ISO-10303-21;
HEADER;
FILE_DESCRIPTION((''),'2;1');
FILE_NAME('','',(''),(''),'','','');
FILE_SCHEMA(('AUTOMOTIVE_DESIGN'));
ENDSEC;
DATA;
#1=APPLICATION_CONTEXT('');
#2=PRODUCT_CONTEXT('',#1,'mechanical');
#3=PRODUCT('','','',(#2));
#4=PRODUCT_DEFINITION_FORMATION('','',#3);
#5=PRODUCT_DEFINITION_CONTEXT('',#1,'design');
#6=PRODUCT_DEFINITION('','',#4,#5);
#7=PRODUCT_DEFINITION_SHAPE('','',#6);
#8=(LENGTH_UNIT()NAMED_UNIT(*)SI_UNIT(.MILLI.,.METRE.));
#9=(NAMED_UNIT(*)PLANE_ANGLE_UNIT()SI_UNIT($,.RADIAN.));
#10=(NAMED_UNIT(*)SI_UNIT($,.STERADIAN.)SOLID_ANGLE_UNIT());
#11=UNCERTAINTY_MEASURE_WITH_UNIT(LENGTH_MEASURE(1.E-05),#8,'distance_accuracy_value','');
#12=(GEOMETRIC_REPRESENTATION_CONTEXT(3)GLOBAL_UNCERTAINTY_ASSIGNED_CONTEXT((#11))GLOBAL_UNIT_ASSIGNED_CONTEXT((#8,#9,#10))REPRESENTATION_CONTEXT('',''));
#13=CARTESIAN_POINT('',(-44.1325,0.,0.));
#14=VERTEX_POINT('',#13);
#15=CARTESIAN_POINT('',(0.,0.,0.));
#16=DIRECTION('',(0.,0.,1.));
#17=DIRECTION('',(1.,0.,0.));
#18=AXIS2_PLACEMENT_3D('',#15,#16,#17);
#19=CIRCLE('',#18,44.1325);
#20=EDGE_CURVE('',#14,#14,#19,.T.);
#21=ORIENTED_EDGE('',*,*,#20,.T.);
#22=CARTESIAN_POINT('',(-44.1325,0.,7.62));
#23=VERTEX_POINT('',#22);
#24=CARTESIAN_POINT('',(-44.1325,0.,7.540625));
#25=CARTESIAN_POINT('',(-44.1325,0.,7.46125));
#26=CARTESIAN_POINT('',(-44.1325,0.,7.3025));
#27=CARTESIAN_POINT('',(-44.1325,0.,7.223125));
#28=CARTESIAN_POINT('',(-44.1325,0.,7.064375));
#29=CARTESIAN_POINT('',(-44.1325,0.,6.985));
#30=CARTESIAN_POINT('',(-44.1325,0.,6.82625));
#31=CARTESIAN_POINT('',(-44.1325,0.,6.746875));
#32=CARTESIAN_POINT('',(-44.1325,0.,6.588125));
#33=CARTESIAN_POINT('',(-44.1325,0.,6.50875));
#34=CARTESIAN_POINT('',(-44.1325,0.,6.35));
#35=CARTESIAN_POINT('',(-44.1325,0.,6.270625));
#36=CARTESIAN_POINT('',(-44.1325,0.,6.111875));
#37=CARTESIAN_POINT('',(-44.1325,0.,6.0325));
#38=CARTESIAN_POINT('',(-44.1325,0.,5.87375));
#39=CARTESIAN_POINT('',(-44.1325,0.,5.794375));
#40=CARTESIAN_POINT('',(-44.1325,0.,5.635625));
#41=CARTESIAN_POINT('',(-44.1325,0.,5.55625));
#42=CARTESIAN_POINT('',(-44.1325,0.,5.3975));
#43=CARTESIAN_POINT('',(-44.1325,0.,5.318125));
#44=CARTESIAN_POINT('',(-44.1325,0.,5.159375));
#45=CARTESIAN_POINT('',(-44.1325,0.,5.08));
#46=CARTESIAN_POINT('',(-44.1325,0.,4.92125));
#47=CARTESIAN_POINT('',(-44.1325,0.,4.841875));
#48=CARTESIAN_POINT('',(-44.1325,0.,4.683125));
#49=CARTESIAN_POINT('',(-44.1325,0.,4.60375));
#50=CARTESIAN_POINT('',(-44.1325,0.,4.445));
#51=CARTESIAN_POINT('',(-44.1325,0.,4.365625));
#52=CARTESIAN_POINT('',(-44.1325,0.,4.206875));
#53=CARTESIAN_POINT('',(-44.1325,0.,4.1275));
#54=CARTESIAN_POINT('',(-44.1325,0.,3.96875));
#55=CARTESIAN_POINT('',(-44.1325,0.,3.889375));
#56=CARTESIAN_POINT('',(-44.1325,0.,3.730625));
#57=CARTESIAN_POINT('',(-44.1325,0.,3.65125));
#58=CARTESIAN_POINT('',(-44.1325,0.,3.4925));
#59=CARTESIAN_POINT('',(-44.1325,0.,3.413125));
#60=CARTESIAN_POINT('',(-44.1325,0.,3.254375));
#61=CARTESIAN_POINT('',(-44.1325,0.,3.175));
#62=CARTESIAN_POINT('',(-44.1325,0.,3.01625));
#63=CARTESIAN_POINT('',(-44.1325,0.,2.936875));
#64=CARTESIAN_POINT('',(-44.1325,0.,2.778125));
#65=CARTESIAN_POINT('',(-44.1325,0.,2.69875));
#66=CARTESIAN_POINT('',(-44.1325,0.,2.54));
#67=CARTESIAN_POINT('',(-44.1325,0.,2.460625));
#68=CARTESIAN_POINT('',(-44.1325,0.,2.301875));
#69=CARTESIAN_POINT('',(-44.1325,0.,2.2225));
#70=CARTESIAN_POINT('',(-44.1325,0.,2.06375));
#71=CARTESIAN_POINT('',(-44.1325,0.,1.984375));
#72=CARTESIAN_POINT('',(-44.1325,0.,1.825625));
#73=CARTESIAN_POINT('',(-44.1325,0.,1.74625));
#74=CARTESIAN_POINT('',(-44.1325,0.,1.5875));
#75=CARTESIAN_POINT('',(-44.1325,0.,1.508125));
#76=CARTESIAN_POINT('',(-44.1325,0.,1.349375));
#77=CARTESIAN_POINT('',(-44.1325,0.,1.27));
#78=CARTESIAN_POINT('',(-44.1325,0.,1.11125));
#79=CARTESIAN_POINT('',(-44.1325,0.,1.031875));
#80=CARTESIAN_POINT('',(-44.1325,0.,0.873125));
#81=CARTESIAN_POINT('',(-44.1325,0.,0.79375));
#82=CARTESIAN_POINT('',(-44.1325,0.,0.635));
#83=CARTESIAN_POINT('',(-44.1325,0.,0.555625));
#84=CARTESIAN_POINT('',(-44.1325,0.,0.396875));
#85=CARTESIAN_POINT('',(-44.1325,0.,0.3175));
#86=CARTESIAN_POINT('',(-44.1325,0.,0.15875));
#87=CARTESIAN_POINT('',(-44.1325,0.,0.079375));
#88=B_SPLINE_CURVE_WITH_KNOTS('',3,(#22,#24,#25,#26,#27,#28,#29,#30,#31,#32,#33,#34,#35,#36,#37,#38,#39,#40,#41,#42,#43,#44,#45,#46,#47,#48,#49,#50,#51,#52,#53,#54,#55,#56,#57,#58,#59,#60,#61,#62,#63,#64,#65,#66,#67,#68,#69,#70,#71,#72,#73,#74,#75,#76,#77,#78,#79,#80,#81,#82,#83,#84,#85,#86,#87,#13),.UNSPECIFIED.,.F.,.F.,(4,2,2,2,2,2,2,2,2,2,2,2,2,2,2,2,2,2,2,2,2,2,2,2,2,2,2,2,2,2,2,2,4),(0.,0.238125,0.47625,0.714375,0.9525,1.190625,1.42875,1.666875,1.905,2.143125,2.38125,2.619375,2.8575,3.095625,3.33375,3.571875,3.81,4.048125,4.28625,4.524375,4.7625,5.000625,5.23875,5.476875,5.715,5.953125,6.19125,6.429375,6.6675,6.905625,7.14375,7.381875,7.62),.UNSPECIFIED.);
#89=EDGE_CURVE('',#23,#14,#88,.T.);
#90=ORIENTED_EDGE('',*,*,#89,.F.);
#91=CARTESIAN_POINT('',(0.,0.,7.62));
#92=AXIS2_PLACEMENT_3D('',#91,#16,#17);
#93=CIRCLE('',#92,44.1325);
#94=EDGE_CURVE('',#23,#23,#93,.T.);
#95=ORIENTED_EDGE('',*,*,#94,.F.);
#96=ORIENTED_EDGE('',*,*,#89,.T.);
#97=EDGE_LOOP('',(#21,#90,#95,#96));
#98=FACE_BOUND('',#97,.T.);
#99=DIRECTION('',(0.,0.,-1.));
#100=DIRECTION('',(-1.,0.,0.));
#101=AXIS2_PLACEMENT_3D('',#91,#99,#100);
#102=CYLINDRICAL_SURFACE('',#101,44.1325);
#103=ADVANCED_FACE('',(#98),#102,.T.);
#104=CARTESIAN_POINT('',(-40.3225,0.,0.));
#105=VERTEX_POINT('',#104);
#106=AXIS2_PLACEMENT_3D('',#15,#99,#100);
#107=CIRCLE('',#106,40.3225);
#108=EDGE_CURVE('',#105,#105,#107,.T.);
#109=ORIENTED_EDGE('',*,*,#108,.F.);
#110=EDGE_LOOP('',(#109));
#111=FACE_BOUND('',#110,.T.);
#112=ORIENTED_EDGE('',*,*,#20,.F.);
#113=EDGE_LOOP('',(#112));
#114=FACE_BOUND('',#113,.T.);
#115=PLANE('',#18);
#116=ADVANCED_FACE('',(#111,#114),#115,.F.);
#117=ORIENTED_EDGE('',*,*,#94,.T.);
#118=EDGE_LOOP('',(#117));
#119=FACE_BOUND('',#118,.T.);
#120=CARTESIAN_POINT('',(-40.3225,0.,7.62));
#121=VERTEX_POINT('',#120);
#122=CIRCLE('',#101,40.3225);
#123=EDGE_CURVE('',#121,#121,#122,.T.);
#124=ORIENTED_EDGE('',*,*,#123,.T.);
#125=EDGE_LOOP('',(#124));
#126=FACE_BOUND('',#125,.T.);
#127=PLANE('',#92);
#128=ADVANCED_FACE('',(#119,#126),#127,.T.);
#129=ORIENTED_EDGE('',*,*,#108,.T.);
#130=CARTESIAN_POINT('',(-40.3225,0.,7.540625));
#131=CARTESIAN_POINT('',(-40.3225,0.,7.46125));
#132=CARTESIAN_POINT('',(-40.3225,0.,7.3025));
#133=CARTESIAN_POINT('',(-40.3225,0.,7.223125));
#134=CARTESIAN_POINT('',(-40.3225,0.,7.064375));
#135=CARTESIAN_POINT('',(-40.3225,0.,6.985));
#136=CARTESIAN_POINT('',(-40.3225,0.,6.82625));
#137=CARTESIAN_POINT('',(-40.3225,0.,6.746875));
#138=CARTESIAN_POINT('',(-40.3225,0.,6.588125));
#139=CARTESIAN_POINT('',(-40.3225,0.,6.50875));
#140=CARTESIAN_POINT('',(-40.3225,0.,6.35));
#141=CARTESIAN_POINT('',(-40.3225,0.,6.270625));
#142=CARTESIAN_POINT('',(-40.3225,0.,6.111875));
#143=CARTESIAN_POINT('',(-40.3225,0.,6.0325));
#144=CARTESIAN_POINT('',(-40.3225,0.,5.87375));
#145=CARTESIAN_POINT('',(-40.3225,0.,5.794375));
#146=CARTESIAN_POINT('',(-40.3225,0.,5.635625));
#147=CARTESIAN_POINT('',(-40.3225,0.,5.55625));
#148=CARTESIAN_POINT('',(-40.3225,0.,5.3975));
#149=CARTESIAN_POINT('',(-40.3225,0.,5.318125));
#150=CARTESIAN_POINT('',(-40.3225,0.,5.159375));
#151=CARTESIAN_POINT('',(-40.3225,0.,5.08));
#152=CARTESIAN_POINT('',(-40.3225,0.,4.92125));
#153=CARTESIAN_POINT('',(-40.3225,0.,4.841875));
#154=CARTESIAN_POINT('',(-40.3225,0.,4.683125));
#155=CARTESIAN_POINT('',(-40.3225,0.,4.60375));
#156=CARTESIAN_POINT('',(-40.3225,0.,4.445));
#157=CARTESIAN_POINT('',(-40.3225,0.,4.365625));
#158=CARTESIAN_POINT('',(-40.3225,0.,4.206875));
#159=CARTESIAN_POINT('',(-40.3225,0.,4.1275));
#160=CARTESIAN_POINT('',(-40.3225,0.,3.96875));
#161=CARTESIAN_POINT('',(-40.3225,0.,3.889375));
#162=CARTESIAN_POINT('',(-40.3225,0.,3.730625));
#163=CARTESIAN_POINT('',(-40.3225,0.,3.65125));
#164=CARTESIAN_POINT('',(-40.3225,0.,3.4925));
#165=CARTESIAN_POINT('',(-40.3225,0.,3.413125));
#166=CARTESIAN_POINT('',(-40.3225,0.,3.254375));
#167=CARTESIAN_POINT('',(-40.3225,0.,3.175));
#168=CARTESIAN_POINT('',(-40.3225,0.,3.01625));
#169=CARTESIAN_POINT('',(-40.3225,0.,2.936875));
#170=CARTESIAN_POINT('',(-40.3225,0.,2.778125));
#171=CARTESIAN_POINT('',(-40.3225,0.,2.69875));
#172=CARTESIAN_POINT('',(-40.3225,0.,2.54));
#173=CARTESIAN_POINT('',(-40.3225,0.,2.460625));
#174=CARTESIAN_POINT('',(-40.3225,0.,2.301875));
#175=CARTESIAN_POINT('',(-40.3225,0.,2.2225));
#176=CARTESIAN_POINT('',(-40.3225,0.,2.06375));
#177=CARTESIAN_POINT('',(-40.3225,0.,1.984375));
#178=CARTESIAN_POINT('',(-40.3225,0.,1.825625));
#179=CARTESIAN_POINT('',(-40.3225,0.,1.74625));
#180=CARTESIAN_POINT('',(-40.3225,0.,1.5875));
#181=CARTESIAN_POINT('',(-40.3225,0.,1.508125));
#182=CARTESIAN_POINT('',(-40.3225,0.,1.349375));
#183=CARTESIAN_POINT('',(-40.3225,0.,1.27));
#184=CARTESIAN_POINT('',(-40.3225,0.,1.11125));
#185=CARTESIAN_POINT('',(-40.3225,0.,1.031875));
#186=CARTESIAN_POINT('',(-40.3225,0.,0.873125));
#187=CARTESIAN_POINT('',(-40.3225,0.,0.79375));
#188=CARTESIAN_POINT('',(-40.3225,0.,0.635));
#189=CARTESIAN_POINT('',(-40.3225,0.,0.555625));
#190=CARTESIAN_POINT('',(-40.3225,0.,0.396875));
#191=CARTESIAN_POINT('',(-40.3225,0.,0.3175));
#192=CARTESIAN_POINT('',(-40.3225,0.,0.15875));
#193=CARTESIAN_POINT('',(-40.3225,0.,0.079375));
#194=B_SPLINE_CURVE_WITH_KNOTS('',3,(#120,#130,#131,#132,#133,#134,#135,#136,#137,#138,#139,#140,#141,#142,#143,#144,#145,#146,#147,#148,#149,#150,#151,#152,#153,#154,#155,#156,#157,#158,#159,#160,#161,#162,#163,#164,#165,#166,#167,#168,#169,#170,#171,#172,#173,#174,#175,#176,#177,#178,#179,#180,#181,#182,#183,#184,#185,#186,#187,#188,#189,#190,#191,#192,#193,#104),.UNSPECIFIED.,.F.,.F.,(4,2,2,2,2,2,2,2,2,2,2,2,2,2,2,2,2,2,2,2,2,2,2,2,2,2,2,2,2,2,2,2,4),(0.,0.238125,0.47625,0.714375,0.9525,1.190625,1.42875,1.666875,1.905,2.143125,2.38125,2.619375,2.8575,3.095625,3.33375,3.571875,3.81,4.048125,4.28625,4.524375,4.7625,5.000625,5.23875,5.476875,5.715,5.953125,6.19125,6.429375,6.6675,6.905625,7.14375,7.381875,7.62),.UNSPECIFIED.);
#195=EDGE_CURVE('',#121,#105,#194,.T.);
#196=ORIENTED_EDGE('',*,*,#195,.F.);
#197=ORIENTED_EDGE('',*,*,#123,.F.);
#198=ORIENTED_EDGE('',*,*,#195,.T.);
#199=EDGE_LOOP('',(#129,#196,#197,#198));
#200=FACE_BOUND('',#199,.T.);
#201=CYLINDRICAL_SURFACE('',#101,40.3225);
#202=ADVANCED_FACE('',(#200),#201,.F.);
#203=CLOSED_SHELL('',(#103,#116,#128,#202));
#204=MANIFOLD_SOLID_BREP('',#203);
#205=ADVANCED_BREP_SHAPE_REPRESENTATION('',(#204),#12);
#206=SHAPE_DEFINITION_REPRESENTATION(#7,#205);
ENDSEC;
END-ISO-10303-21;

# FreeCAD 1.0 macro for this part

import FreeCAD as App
import Part
import Sketcher
Q = App.Units.Quantity

doc = App.newDocument("Part")
body = doc.addObject("PartDesign::Body", "Body")

sketch1 = body.newObject("Sketcher::SketchObject", "Sketch")
sketch1.AttachmentSupport = (doc.getObject("XY_Plane"), [""])
sketch1.MapMode = "FlatFace"
sketch1.addGeometry(Part.Circle(App.Vector(0, 0, 0), App.Vector(0, 0, 1), 44), False)
sketch1.addConstraint([
    Sketcher.Constraint("Coincident", 0, 3, -1, 1),
    Sketcher.Constraint("Diameter", 0, Q("3.475 in")),
])
pad1 = body.newObject("PartDesign::Pad", "Pad")
pad1.Profile = sketch1
pad1.Length = Q("0.3 in")

sketch2 = body.newObject("Sketcher::SketchObject", "Sketch001")
sketch2.AttachmentSupport = (doc.getObject("XY_Plane"), [""])
sketch2.MapMode = "FlatFace"
sketch2.addGeometry(Part.Circle(App.Vector(0, 0, 0), App.Vector(0, 0, 1), 40), False)
sketch2.addConstraint([
    Sketcher.Constraint("Coincident", 0, 3, -1, 1),
    Sketcher.Constraint("Diameter", 0, Q("3.175 in")),
])
pocket1 = body.newObject("PartDesign::Pocket", "Pocket")
pocket1.Profile = sketch2
pocket1.Length = Q("0.3 in")
pocket1.Reversed = True

doc.recompute()
